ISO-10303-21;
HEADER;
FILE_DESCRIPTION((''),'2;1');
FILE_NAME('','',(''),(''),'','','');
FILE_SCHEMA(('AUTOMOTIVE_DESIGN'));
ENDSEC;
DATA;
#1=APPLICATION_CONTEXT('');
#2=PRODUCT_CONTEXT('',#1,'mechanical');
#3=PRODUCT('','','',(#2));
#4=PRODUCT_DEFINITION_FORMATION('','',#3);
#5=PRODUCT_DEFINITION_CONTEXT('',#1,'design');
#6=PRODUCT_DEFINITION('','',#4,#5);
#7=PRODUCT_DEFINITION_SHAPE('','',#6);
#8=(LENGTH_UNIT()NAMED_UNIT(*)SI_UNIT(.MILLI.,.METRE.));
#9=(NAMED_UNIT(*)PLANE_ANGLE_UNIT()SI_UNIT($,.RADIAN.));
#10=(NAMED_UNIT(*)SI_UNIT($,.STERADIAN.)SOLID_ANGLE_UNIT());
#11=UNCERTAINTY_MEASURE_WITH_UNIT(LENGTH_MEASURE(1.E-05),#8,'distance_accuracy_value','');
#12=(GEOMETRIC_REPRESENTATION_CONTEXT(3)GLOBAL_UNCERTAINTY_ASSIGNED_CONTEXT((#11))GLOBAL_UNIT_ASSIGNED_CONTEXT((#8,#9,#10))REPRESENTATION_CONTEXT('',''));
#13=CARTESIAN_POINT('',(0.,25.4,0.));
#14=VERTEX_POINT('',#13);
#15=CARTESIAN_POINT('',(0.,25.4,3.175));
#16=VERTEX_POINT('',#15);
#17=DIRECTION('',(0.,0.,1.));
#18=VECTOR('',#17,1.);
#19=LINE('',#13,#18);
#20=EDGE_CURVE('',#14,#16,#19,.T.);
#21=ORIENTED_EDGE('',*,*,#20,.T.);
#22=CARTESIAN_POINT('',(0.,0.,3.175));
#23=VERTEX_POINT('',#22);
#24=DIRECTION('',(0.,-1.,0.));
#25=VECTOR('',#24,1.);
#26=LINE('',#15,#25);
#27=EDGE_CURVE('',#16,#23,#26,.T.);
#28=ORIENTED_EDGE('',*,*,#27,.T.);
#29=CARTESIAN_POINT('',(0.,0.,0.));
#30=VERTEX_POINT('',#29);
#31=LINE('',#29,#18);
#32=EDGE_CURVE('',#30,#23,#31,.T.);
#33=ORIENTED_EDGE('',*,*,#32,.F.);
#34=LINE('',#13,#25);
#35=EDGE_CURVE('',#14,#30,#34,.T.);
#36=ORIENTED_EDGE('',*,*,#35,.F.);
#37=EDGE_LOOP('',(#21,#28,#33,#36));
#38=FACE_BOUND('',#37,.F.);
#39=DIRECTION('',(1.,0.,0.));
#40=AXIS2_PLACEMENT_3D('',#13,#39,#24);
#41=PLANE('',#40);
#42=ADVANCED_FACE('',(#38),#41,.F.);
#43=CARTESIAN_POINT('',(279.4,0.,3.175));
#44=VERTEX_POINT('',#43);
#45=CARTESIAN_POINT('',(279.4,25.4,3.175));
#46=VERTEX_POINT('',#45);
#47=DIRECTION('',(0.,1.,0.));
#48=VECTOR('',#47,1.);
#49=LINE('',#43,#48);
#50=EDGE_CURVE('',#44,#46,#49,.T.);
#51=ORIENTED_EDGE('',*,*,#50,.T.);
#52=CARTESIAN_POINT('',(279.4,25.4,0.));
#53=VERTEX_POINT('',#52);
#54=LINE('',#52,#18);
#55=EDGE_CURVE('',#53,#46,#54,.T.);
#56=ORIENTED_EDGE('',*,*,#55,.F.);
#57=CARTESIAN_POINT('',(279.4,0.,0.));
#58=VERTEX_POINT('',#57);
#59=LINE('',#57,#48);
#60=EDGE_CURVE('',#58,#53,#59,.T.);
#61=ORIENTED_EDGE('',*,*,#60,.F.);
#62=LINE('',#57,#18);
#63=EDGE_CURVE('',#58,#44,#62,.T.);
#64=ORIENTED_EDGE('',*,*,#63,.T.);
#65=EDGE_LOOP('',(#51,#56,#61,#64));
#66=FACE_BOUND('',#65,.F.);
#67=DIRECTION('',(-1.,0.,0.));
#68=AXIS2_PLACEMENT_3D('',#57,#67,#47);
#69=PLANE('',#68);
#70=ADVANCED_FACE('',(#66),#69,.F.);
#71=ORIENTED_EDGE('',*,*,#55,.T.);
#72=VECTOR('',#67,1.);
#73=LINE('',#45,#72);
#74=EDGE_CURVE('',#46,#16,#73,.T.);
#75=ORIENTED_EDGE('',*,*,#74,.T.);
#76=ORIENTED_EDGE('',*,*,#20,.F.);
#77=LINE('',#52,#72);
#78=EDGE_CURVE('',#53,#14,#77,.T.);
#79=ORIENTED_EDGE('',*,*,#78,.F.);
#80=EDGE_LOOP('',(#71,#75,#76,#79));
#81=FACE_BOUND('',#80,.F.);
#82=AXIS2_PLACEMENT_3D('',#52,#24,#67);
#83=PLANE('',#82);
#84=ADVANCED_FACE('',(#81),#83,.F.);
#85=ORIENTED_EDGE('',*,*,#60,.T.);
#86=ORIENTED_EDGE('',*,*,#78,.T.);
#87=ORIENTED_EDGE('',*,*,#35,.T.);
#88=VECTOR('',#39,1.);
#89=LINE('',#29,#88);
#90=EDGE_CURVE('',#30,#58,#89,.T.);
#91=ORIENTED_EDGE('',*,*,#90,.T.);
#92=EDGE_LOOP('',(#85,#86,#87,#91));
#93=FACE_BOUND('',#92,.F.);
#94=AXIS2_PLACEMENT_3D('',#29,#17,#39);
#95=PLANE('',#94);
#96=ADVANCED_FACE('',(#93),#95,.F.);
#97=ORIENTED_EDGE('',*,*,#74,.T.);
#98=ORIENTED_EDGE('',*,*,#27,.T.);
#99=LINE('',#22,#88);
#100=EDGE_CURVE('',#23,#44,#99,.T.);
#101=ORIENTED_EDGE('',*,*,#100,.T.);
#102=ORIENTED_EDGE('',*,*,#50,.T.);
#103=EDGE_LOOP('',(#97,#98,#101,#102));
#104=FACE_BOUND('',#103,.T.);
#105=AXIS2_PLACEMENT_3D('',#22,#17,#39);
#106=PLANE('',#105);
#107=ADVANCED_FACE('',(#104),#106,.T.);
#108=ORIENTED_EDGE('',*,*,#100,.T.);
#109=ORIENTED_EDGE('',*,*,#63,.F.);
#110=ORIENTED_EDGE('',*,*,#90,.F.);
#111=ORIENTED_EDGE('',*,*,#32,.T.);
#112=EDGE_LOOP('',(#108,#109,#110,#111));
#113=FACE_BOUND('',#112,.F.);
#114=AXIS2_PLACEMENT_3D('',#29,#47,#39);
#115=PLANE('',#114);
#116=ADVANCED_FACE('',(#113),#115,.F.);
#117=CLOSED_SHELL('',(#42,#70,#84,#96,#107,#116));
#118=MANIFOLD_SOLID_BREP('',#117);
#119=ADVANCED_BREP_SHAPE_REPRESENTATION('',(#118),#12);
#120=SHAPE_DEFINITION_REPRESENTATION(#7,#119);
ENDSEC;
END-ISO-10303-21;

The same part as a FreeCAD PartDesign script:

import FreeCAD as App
import Part
import Sketcher
Q = App.Units.Quantity

doc = App.newDocument("Part")
body = doc.addObject("PartDesign::Body", "Body")

# Sketch on XY plane
sketch1 = body.newObject("Sketcher::SketchObject", "Sketch")
sketch1.AttachmentSupport = (doc.getObject("XY_Plane"), [""])
sketch1.MapMode = "FlatFace"
sketch1.addGeometry([
    Part.LineSegment(App.Vector(0, 25, 0), App.Vector(0, 0, 0)),
    Part.LineSegment(App.Vector(0, 0, 0), App.Vector(279, 0, 0)),
    Part.LineSegment(App.Vector(279, 0, 0), App.Vector(279, 25, 0)),
    Part.LineSegment(App.Vector(279, 25, 0), App.Vector(0, 25, 0)),
], False)
sketch1.addConstraint([
    Sketcher.Constraint("Coincident", 0, 2, 1, 1),
    Sketcher.Constraint("Coincident", 1, 2, 2, 1),
    Sketcher.Constraint("Coincident", 2, 2, 3, 1),
    Sketcher.Constraint("Coincident", 3, 2, 0, 1),
    Sketcher.Constraint("Vertical", 0),
    Sketcher.Constraint("Horizontal", 1),
    Sketcher.Constraint("Vertical", 2),
    Sketcher.Constraint("Horizontal", 3),
    Sketcher.Constraint("Coincident", 0, 2, -1, 1),
    Sketcher.Constraint("DistanceX", 1, 1, 1, 2, Q("11 in")),
    Sketcher.Constraint("DistanceY", 0, 2, 0, 1, Q("1 in")),
])
pad1 = body.newObject("PartDesign::Pad", "Pad")
pad1.Profile = sketch1
pad1.Length = Q("0.125 in")

doc.recompute()
